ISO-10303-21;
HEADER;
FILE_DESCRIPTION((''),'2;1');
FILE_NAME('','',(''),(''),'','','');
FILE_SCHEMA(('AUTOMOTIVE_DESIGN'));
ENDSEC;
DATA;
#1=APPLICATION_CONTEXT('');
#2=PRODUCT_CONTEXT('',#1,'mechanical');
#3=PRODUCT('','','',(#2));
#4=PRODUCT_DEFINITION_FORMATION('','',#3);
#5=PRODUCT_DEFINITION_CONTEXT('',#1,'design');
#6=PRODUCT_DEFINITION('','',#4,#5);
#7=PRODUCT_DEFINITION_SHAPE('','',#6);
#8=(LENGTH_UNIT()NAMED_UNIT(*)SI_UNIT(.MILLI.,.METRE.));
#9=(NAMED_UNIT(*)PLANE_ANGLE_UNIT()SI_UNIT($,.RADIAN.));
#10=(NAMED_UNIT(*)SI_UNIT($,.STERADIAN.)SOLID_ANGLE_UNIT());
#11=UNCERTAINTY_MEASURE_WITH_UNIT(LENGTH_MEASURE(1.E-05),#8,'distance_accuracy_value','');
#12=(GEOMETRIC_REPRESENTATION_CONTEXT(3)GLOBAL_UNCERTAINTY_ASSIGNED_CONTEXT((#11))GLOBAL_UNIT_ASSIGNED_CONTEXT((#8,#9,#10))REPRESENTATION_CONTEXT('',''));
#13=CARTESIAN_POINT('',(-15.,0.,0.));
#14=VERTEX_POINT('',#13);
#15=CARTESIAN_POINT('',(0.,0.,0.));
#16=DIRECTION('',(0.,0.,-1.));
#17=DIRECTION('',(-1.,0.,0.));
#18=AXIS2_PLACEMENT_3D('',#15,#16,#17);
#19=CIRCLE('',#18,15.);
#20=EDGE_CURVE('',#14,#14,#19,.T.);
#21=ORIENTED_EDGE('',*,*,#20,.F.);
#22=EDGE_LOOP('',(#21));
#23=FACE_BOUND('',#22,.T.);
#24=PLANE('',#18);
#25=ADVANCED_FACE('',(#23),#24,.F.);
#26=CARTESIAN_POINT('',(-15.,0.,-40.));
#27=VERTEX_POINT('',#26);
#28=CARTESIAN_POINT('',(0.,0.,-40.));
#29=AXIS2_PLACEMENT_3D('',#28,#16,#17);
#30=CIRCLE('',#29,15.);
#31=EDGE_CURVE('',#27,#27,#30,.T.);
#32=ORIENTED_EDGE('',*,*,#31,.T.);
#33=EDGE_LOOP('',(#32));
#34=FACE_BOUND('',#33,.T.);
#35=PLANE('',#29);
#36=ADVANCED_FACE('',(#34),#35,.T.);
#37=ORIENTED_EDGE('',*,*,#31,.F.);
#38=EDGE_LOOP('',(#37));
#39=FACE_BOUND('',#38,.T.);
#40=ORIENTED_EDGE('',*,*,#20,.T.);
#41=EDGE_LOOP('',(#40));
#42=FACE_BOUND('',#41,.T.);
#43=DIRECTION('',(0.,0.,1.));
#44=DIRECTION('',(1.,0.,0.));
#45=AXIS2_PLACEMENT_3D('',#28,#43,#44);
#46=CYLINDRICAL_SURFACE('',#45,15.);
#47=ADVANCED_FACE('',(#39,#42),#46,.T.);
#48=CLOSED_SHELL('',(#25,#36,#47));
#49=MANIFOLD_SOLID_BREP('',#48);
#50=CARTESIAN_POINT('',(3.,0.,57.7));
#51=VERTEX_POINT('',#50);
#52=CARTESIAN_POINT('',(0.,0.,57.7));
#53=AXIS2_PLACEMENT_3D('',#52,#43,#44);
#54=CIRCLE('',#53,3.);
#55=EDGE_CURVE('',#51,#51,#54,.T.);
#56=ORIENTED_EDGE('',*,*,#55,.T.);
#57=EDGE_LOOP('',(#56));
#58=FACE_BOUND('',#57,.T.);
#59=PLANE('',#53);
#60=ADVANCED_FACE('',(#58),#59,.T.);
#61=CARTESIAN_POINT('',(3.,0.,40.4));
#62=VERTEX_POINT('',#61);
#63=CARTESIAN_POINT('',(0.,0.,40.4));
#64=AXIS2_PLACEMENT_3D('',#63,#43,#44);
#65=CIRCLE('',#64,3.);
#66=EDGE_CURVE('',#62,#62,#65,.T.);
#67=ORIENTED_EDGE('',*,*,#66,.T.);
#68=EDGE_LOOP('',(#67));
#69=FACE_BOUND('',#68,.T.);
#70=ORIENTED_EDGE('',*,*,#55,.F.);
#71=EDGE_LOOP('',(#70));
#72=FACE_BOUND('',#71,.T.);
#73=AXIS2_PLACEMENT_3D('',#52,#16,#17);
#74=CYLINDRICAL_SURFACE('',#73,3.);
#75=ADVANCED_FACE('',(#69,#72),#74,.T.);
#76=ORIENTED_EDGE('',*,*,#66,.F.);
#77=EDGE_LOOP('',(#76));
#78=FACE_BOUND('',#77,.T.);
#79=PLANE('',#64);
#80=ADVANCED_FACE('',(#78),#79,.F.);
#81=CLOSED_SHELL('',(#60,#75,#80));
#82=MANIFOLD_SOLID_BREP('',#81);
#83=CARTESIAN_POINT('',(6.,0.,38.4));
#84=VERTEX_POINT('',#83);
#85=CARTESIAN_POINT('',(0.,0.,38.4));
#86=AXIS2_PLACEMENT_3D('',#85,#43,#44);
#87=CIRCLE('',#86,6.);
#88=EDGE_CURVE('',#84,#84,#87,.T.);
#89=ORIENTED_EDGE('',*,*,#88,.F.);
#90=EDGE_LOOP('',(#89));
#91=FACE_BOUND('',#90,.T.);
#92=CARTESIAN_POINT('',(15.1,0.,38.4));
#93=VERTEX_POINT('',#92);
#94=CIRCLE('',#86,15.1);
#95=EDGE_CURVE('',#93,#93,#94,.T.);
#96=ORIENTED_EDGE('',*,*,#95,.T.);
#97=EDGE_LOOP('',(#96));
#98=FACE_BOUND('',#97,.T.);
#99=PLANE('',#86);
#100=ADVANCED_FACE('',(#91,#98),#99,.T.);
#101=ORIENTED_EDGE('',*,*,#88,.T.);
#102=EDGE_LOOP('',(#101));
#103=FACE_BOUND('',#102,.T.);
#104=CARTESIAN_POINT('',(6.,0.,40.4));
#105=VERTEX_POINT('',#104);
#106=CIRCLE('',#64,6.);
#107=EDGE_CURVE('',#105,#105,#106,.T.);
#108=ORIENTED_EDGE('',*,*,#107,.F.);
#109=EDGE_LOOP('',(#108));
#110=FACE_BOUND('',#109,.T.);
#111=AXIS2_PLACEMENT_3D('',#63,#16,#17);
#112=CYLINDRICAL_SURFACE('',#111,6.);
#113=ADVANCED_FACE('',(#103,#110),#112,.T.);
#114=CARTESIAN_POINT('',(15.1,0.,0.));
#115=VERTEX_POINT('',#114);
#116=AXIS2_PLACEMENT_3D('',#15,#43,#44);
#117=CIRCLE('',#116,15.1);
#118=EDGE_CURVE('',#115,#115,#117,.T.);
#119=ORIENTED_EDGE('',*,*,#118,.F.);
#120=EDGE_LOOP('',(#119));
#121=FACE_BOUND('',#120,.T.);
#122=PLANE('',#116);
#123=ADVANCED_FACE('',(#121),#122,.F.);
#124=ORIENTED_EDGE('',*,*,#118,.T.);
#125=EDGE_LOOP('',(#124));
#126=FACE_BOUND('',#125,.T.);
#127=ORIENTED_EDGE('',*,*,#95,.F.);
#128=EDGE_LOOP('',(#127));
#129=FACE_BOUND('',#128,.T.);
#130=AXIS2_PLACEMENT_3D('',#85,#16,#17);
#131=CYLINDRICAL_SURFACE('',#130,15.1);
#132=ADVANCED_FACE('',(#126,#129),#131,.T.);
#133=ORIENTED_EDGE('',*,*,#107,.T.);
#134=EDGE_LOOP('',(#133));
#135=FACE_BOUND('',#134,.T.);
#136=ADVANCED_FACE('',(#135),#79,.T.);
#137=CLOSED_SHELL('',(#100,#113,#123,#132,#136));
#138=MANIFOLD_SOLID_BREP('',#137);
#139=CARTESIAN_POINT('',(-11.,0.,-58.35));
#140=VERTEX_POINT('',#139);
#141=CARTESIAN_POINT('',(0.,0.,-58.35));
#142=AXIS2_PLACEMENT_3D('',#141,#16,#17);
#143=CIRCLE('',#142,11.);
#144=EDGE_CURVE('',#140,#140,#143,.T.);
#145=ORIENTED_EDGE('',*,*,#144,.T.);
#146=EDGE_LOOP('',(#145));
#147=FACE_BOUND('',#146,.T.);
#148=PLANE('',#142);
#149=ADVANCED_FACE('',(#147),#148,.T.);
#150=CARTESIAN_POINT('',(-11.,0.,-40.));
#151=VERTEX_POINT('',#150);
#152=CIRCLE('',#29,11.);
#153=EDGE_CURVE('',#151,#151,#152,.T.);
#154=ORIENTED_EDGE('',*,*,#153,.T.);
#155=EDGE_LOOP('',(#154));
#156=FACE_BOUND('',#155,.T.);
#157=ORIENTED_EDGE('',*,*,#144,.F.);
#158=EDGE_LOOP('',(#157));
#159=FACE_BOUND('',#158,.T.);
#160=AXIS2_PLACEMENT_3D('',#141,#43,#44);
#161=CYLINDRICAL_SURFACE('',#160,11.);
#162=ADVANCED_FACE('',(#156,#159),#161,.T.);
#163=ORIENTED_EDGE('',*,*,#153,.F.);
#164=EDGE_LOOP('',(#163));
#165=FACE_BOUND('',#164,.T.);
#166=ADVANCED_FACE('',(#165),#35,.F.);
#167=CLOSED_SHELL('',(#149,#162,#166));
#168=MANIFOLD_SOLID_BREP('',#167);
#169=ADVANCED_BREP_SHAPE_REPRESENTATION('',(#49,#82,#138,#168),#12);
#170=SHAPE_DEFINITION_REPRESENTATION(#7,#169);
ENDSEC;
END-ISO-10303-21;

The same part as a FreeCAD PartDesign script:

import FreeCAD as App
import Part
import Sketcher

V = App.Vector

doc = App.newDocument("Part")
params = doc.addObject("Spreadsheet::Sheet", "Params")
for row, (alias, value) in enumerate([
    ("sketch1_diameter", "30.2 mm"),
    ("pad1_length", "38.4 mm"),
    ("sketch2_diameter", "12 mm"),
    ("pad2_length", "2 mm"),
    ("sketch3_diameter", "30 mm"),
    ("pad3_length", "40 mm"),
    ("sketch4_diameter", "22 mm"),
    ("pad4_length", "18.35 mm"),
    ("sketch5_diameter", "6 mm"),
    ("pad5_length", "17.3 mm"),
], start=1):
    params.set(f"A{row}", alias)
    params.set(f"B{row}", "=" + value)
    params.setAlias(f"B{row}", alias)

body = doc.addObject("PartDesign::Body", "Body")

sketch1 = doc.addObject("Sketcher::SketchObject", "Sketch")
body.addObject(sketch1)
sketch1.AttachmentSupport = (doc.XY_Plane, [""])
sketch1.MapMode = "FlatFace"
sketch1.addGeometry(Part.Circle(V(0, 0, 0), V(0, 0, 1), 15.1), False)
sketch1.addConstraint(Sketcher.Constraint("Coincident", 0, 3, -1, 1))
sketch1.addConstraint(Sketcher.Constraint("Diameter", 0, 30.2))
sketch1.setExpression("Constraints[1]", "Params.sketch1_diameter")
pad1 = doc.addObject("PartDesign::Pad", "Pad")
body.addObject(pad1)
pad1.Profile = sketch1
pad1.setExpression("Length", "Params.pad1_length")

sketch2 = doc.addObject("Sketcher::SketchObject", "Sketch001")
body.addObject(sketch2)
sketch2.AttachmentSupport = (doc.XY_Plane, [""])
sketch2.MapMode = "FlatFace"
sketch2.AttachmentOffset = App.Placement(V(0, 0, 38.4), App.Rotation())
sketch2.addGeometry(Part.Circle(V(0, 0, 0), V(0, 0, 1), 6), False)
sketch2.addConstraint(Sketcher.Constraint("Coincident", 0, 3, -1, 1))
sketch2.addConstraint(Sketcher.Constraint("Diameter", 0, 12.0))
sketch2.setExpression("Constraints[1]", "Params.sketch2_diameter")
pad2 = doc.addObject("PartDesign::Pad", "Pad001")
body.addObject(pad2)
pad2.Profile = sketch2
pad2.setExpression("Length", "Params.pad2_length")
body2 = doc.addObject("PartDesign::Body", "Body001")

sketch3 = doc.addObject("Sketcher::SketchObject", "Sketch002")
body2.addObject(sketch3)
sketch3.AttachmentSupport = (doc.getObject("XY_Plane001"), [""])
sketch3.MapMode = "FlatFace"
sketch3.addGeometry(Part.Circle(V(0, 0, 0), V(0, 0, 1), 15), False)
sketch3.addConstraint(Sketcher.Constraint("Coincident", 0, 3, -1, 1))
sketch3.addConstraint(Sketcher.Constraint("Diameter", 0, 30.0))
sketch3.setExpression("Constraints[1]", "Params.sketch3_diameter")
pad3 = doc.addObject("PartDesign::Pad", "Pad002")
body2.addObject(pad3)
pad3.Profile = sketch3
pad3.setExpression("Length", "Params.pad3_length")
pad3.Reversed = True
body3 = doc.addObject("PartDesign::Body", "Body002")

sketch4 = doc.addObject("Sketcher::SketchObject", "Sketch003")
body3.addObject(sketch4)
sketch4.AttachmentSupport = (doc.getObject("XY_Plane002"), [""])
sketch4.MapMode = "FlatFace"
sketch4.AttachmentOffset = App.Placement(V(0, 0, -40), App.Rotation())
sketch4.addGeometry(Part.Circle(V(0, 0, 0), V(0, 0, 1), 11), False)
sketch4.addConstraint(Sketcher.Constraint("Coincident", 0, 3, -1, 1))
sketch4.addConstraint(Sketcher.Constraint("Diameter", 0, 22.0))
sketch4.setExpression("Constraints[1]", "Params.sketch4_diameter")
pad4 = doc.addObject("PartDesign::Pad", "Pad003")
body3.addObject(pad4)
pad4.Profile = sketch4
pad4.setExpression("Length", "Params.pad4_length")
pad4.Reversed = True
body4 = doc.addObject("PartDesign::Body", "Body003")

sketch5 = doc.addObject("Sketcher::SketchObject", "Sketch004")
body4.addObject(sketch5)
sketch5.AttachmentSupport = (doc.getObject("XY_Plane003"), [""])
sketch5.MapMode = "FlatFace"
sketch5.AttachmentOffset = App.Placement(V(0, 0, 40.4), App.Rotation())
sketch5.addGeometry(Part.Circle(V(0, 0, 0), V(0, 0, 1), 3), False)
sketch5.addConstraint(Sketcher.Constraint("Coincident", 0, 3, -1, 1))
sketch5.addConstraint(Sketcher.Constraint("Diameter", 0, 6.0))
sketch5.setExpression("Constraints[1]", "Params.sketch5_diameter")
pad5 = doc.addObject("PartDesign::Pad", "Pad004")
body4.addObject(pad5)
pad5.Profile = sketch5
pad5.setExpression("Length", "Params.pad5_length")

doc.recompute()
